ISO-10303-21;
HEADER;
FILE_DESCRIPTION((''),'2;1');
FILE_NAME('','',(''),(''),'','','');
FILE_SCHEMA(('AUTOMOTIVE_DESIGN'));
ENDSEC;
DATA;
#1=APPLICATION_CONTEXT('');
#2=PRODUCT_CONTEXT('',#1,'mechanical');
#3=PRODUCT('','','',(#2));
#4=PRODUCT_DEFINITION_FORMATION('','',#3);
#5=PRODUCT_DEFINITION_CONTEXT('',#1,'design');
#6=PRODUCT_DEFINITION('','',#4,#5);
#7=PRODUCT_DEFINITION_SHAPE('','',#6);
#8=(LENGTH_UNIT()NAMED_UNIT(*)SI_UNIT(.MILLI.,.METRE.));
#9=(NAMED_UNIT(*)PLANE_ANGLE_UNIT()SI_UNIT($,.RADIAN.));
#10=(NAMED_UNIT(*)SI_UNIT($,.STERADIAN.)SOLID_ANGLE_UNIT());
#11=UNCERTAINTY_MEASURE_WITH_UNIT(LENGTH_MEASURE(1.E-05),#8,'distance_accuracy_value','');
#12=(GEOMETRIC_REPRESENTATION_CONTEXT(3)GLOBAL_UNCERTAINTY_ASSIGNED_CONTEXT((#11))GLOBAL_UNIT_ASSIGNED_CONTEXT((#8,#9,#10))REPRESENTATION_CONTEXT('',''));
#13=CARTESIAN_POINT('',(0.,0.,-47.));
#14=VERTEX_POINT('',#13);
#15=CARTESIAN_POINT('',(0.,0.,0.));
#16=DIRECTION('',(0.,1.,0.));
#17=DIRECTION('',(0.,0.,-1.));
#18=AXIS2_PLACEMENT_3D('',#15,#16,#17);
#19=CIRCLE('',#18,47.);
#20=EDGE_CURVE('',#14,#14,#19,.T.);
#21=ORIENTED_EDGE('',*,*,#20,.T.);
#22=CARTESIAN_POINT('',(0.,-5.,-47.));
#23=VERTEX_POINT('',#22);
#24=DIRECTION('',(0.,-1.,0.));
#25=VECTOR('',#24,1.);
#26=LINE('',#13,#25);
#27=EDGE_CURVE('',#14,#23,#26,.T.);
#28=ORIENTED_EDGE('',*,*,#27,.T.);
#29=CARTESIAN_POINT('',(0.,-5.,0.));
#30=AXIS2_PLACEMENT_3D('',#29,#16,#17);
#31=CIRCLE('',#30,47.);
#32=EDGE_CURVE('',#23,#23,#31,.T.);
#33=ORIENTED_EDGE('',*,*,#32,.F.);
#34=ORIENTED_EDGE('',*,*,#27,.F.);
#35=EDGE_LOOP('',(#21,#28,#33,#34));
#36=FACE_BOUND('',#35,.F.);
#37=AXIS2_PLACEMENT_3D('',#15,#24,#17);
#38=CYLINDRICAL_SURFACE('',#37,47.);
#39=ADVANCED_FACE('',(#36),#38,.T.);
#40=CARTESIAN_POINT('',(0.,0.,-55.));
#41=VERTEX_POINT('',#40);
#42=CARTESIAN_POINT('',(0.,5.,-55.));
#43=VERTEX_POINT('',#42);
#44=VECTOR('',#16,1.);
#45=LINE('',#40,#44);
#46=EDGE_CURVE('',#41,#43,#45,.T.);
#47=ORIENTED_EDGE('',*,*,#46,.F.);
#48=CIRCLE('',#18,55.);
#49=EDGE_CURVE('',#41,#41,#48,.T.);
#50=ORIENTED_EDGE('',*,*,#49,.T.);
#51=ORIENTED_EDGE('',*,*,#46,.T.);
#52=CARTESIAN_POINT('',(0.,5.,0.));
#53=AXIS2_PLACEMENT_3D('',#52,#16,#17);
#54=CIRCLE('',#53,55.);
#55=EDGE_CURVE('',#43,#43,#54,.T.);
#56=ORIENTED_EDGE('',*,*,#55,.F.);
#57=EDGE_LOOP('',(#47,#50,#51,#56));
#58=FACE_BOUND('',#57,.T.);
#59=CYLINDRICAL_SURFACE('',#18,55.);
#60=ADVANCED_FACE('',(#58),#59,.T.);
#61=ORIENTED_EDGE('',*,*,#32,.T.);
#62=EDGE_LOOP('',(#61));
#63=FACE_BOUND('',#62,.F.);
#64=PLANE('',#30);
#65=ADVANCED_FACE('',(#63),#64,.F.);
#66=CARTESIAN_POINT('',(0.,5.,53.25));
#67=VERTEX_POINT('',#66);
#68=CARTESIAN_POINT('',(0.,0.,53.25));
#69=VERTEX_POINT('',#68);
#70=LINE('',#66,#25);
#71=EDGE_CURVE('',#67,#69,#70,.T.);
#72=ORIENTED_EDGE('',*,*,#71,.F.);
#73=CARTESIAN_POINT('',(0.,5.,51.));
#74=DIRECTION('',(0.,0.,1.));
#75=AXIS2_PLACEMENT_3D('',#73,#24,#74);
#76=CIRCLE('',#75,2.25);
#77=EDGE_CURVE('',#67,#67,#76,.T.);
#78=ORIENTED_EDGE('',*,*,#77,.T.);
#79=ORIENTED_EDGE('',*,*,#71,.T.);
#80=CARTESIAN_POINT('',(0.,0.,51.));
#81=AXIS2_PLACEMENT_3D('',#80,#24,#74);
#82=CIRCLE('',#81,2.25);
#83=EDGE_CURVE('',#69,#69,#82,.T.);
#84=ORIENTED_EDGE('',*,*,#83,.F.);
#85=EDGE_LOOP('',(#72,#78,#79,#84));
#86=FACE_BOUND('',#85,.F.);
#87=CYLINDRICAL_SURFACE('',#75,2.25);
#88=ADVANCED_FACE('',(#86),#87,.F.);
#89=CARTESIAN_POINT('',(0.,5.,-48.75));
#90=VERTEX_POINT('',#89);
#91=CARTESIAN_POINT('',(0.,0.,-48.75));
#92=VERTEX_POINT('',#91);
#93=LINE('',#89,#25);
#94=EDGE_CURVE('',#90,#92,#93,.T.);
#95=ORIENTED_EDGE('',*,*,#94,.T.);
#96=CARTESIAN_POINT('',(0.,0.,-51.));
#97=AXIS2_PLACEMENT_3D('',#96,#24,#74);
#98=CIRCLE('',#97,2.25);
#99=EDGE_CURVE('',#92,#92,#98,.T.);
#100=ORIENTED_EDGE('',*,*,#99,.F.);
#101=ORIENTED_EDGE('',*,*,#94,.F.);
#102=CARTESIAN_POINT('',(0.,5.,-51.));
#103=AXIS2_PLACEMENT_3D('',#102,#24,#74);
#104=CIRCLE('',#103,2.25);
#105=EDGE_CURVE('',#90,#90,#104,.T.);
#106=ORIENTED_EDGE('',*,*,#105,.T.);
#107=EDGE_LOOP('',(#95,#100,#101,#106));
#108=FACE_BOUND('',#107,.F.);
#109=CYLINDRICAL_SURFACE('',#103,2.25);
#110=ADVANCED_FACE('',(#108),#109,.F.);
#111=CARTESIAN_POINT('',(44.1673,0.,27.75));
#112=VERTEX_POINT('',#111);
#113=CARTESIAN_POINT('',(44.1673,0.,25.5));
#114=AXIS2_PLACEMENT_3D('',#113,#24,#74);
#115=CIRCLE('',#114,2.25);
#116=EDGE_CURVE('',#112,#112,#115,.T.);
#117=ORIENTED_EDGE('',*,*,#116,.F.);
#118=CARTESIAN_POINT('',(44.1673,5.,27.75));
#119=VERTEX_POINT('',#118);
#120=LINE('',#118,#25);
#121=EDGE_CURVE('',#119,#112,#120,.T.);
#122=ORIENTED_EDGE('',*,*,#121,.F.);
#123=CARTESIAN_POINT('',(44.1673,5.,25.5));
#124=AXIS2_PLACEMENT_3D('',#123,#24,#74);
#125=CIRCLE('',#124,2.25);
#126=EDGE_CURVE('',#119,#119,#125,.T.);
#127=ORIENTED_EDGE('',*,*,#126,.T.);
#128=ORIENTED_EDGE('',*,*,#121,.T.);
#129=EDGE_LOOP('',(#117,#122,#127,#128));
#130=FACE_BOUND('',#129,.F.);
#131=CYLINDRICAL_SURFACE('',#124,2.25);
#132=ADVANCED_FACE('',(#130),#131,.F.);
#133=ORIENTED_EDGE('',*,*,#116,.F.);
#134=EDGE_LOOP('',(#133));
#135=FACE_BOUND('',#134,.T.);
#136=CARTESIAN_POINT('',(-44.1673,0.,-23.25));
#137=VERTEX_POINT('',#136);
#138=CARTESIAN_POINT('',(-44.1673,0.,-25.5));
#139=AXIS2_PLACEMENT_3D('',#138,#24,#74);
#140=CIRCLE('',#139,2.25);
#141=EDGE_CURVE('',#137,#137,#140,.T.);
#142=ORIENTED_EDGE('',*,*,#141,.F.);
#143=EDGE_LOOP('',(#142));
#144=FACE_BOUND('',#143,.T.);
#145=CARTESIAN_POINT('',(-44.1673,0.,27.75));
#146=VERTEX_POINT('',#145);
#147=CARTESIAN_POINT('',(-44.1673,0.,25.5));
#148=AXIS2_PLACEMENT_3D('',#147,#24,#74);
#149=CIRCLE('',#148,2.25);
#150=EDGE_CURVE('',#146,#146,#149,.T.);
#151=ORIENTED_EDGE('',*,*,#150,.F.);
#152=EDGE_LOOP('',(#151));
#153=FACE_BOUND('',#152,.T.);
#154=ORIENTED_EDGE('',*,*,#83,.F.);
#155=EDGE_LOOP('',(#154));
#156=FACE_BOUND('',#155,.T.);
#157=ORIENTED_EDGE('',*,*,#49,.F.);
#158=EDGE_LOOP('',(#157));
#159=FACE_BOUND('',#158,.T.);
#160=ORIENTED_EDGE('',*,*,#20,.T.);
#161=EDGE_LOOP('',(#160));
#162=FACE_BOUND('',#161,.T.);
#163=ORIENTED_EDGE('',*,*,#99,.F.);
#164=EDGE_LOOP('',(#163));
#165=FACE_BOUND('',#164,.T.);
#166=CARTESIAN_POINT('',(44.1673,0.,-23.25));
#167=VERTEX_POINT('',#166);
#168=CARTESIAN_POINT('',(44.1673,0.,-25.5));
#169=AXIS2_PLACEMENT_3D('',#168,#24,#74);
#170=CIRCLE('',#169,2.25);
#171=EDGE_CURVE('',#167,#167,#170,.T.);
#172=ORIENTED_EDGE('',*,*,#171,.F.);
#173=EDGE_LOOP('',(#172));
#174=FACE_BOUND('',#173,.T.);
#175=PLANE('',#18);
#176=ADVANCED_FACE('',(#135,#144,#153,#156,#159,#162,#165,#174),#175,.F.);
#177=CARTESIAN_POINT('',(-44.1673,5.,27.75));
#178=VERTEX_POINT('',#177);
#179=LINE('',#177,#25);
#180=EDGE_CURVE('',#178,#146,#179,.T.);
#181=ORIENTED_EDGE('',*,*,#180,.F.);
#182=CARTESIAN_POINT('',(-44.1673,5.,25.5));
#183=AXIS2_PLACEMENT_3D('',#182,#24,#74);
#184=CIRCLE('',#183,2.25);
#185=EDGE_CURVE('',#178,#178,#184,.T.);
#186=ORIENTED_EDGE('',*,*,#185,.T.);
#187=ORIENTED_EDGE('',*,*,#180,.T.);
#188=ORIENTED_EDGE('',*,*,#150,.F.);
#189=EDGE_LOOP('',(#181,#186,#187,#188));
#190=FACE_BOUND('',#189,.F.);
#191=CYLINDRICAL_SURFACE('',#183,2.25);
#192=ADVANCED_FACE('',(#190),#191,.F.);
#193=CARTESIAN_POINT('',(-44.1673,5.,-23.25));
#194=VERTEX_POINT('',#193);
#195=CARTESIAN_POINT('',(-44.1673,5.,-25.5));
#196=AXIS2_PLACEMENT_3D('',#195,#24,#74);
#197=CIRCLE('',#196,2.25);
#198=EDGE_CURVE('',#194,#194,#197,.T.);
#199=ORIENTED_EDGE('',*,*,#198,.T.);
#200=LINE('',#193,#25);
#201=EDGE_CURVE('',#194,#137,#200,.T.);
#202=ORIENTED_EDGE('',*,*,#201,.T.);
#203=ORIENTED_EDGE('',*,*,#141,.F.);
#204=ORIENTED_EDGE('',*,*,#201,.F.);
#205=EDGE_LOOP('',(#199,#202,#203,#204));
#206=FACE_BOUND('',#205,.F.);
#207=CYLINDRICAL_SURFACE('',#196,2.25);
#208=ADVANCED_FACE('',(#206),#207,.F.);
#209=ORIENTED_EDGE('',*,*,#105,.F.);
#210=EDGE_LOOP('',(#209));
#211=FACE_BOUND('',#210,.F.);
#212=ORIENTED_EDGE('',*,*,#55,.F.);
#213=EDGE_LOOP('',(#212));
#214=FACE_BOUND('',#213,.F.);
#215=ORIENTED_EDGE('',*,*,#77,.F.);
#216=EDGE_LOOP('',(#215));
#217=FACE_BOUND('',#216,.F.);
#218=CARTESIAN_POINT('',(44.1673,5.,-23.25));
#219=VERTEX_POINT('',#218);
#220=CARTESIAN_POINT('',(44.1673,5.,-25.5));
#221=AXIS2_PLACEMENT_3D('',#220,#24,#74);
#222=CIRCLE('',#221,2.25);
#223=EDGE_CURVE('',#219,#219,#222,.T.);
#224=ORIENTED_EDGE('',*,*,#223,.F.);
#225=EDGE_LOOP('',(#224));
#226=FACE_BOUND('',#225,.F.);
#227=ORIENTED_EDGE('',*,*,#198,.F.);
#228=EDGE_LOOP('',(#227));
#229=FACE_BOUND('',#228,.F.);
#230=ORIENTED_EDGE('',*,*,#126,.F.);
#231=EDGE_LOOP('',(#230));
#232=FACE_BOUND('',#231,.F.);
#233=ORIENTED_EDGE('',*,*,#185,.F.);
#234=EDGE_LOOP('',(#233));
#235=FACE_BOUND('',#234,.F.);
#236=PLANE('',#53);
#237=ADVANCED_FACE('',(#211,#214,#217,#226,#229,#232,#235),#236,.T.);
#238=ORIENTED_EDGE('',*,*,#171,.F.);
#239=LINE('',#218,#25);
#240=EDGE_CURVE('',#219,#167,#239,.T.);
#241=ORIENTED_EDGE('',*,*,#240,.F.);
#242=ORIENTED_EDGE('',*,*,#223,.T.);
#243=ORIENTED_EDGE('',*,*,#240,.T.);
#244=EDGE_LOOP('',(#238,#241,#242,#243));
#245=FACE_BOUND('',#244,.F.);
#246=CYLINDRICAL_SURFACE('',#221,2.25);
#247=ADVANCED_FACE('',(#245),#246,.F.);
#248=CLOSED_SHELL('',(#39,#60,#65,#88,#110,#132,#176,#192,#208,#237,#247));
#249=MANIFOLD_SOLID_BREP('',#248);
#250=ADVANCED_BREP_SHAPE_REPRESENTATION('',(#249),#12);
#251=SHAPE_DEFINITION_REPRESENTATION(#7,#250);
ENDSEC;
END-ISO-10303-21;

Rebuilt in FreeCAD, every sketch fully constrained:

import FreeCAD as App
import Part
import Sketcher
from FreeCAD import Vector
Q = App.Units.Quantity

doc = App.newDocument("Part")
body = doc.addObject("PartDesign::Body", "Body")

sketch1 = body.newObject("Sketcher::SketchObject", "Sketch")
sketch1.AttachmentSupport = (doc.getObject("YZ_Plane"), [""])
sketch1.MapMode = "FlatFace"
sketch1.addGeometry(Part.LineSegment(Vector(5, 0, 0), Vector(-5, 0, 0)), False)
sketch1.addGeometry(Part.LineSegment(Vector(-5, 0, 0), Vector(-5, -47, 0)), False)
sketch1.addGeometry(Part.LineSegment(Vector(-5, -47, 0), Vector(0, -47, 0)), False)
sketch1.addGeometry(Part.LineSegment(Vector(0, -47, 0), Vector(0, -55, 0)), False)
sketch1.addGeometry(Part.LineSegment(Vector(0, -55, 0), Vector(5, -55, 0)), False)
sketch1.addGeometry(Part.LineSegment(Vector(5, -55, 0), Vector(5, 0, 0)), False)
sketch1.addConstraint(Sketcher.Constraint("Coincident", 0, 2, 1, 1))
sketch1.addConstraint(Sketcher.Constraint("Coincident", 1, 2, 2, 1))
sketch1.addConstraint(Sketcher.Constraint("Coincident", 2, 2, 3, 1))
sketch1.addConstraint(Sketcher.Constraint("Coincident", 3, 2, 4, 1))
sketch1.addConstraint(Sketcher.Constraint("Coincident", 4, 2, 5, 1))
sketch1.addConstraint(Sketcher.Constraint("Coincident", 5, 2, 0, 1))
sketch1.addConstraint(Sketcher.Constraint("Horizontal", 0))
sketch1.addConstraint(Sketcher.Constraint("Vertical", 1))
sketch1.addConstraint(Sketcher.Constraint("Horizontal", 2))
sketch1.addConstraint(Sketcher.Constraint("Vertical", 3))
sketch1.addConstraint(Sketcher.Constraint("Horizontal", 4))
sketch1.addConstraint(Sketcher.Constraint("Vertical", 5))
sketch1.addConstraint(Sketcher.Constraint("Symmetric", 0, 2, 5, 2, -1, 1))
sketch1.addConstraint(Sketcher.Constraint("PointOnObject", 2, 2, -2))
sketch1.addConstraint(Sketcher.Constraint("DistanceX", 2, 1, 2, 2, Q("5 mm")))
sketch1.addConstraint(Sketcher.Constraint("DistanceY", 1, 2, 1, 1, Q("47 mm")))
sketch1.addConstraint(Sketcher.Constraint("DistanceY", 3, 2, 3, 1, Q("8 mm")))
revolution = body.newObject("PartDesign::Revolution", "Revolution")
revolution.Profile = sketch1
revolution.ReferenceAxis = (sketch1, ["H_Axis"])
revolution.Angle = 360

sketch2 = body.newObject("Sketcher::SketchObject", "Sketch001")
sketch2.AttachmentSupport = (doc.getObject("XZ_Plane"), [""])
sketch2.MapMode = "FlatFace"
sketch2.AttachmentOffset = App.Placement(Vector(0, 0, -5), App.Rotation())
sketch2.addGeometry(Part.Circle(Vector(0, 51, 0), Vector(0, 0, 1), 2.2), False)
sketch2.addGeometry(Part.Circle(Vector(44.2, 25.5, 0), Vector(0, 0, 1), 2.2), False)
sketch2.addGeometry(Part.Circle(Vector(44.2, -25.5, 0), Vector(0, 0, 1), 2.2), False)
sketch2.addGeometry(Part.Circle(Vector(0, -51, 0), Vector(0, 0, 1), 2.2), False)
sketch2.addGeometry(Part.Circle(Vector(-44.2, -25.5, 0), Vector(0, 0, 1), 2.2), False)
sketch2.addGeometry(Part.Circle(Vector(-44.2, 25.5, 0), Vector(0, 0, 1), 2.2), False)
sketch2.addConstraint(Sketcher.Constraint("Equal", 0, 1))
sketch2.addConstraint(Sketcher.Constraint("Equal", 1, 2))
sketch2.addConstraint(Sketcher.Constraint("Equal", 2, 3))
sketch2.addConstraint(Sketcher.Constraint("Equal", 3, 4))
sketch2.addConstraint(Sketcher.Constraint("Equal", 4, 5))
sketch2.addConstraint(Sketcher.Constraint("Symmetric", 0, 3, 3, 3, -1, 1))
sketch2.addConstraint(Sketcher.Constraint("Symmetric", 1, 3, 4, 3, -1, 1))
sketch2.addConstraint(Sketcher.Constraint("Symmetric", 2, 3, 5, 3, -1, 1))
sketch2.addConstraint(Sketcher.Constraint("Symmetric", 2, 3, 4, 3, -2))
sketch2.addConstraint(Sketcher.Constraint("PointOnObject", 0, 3, -2))
sketch2.addConstraint(Sketcher.Constraint("Diameter", 0, Q("4.5 mm")))
sketch2.addConstraint(Sketcher.Constraint("DistanceY", -1, 1, 0, 3, Q("51 mm")))
sketch2.addConstraint(Sketcher.Constraint("DistanceY", 2, 3, 1, 3, Q("51 mm")))
sketch2.addConstraint(Sketcher.Constraint("DistanceX", -1, 1, 1, 3, Q("44.1673 mm")))
doc.recompute()
hole = body.newObject("PartDesign::Hole", "Hole")
hole.Profile = sketch2
hole.ThreadType = "None"
hole.Diameter = 4.5
hole.DepthType = "Dimension"
hole.Depth = 11.8
hole.DrillPoint = "Angled"
hole.DrillPointAngle = 118
hole.Reversed = True

doc.recompute()
